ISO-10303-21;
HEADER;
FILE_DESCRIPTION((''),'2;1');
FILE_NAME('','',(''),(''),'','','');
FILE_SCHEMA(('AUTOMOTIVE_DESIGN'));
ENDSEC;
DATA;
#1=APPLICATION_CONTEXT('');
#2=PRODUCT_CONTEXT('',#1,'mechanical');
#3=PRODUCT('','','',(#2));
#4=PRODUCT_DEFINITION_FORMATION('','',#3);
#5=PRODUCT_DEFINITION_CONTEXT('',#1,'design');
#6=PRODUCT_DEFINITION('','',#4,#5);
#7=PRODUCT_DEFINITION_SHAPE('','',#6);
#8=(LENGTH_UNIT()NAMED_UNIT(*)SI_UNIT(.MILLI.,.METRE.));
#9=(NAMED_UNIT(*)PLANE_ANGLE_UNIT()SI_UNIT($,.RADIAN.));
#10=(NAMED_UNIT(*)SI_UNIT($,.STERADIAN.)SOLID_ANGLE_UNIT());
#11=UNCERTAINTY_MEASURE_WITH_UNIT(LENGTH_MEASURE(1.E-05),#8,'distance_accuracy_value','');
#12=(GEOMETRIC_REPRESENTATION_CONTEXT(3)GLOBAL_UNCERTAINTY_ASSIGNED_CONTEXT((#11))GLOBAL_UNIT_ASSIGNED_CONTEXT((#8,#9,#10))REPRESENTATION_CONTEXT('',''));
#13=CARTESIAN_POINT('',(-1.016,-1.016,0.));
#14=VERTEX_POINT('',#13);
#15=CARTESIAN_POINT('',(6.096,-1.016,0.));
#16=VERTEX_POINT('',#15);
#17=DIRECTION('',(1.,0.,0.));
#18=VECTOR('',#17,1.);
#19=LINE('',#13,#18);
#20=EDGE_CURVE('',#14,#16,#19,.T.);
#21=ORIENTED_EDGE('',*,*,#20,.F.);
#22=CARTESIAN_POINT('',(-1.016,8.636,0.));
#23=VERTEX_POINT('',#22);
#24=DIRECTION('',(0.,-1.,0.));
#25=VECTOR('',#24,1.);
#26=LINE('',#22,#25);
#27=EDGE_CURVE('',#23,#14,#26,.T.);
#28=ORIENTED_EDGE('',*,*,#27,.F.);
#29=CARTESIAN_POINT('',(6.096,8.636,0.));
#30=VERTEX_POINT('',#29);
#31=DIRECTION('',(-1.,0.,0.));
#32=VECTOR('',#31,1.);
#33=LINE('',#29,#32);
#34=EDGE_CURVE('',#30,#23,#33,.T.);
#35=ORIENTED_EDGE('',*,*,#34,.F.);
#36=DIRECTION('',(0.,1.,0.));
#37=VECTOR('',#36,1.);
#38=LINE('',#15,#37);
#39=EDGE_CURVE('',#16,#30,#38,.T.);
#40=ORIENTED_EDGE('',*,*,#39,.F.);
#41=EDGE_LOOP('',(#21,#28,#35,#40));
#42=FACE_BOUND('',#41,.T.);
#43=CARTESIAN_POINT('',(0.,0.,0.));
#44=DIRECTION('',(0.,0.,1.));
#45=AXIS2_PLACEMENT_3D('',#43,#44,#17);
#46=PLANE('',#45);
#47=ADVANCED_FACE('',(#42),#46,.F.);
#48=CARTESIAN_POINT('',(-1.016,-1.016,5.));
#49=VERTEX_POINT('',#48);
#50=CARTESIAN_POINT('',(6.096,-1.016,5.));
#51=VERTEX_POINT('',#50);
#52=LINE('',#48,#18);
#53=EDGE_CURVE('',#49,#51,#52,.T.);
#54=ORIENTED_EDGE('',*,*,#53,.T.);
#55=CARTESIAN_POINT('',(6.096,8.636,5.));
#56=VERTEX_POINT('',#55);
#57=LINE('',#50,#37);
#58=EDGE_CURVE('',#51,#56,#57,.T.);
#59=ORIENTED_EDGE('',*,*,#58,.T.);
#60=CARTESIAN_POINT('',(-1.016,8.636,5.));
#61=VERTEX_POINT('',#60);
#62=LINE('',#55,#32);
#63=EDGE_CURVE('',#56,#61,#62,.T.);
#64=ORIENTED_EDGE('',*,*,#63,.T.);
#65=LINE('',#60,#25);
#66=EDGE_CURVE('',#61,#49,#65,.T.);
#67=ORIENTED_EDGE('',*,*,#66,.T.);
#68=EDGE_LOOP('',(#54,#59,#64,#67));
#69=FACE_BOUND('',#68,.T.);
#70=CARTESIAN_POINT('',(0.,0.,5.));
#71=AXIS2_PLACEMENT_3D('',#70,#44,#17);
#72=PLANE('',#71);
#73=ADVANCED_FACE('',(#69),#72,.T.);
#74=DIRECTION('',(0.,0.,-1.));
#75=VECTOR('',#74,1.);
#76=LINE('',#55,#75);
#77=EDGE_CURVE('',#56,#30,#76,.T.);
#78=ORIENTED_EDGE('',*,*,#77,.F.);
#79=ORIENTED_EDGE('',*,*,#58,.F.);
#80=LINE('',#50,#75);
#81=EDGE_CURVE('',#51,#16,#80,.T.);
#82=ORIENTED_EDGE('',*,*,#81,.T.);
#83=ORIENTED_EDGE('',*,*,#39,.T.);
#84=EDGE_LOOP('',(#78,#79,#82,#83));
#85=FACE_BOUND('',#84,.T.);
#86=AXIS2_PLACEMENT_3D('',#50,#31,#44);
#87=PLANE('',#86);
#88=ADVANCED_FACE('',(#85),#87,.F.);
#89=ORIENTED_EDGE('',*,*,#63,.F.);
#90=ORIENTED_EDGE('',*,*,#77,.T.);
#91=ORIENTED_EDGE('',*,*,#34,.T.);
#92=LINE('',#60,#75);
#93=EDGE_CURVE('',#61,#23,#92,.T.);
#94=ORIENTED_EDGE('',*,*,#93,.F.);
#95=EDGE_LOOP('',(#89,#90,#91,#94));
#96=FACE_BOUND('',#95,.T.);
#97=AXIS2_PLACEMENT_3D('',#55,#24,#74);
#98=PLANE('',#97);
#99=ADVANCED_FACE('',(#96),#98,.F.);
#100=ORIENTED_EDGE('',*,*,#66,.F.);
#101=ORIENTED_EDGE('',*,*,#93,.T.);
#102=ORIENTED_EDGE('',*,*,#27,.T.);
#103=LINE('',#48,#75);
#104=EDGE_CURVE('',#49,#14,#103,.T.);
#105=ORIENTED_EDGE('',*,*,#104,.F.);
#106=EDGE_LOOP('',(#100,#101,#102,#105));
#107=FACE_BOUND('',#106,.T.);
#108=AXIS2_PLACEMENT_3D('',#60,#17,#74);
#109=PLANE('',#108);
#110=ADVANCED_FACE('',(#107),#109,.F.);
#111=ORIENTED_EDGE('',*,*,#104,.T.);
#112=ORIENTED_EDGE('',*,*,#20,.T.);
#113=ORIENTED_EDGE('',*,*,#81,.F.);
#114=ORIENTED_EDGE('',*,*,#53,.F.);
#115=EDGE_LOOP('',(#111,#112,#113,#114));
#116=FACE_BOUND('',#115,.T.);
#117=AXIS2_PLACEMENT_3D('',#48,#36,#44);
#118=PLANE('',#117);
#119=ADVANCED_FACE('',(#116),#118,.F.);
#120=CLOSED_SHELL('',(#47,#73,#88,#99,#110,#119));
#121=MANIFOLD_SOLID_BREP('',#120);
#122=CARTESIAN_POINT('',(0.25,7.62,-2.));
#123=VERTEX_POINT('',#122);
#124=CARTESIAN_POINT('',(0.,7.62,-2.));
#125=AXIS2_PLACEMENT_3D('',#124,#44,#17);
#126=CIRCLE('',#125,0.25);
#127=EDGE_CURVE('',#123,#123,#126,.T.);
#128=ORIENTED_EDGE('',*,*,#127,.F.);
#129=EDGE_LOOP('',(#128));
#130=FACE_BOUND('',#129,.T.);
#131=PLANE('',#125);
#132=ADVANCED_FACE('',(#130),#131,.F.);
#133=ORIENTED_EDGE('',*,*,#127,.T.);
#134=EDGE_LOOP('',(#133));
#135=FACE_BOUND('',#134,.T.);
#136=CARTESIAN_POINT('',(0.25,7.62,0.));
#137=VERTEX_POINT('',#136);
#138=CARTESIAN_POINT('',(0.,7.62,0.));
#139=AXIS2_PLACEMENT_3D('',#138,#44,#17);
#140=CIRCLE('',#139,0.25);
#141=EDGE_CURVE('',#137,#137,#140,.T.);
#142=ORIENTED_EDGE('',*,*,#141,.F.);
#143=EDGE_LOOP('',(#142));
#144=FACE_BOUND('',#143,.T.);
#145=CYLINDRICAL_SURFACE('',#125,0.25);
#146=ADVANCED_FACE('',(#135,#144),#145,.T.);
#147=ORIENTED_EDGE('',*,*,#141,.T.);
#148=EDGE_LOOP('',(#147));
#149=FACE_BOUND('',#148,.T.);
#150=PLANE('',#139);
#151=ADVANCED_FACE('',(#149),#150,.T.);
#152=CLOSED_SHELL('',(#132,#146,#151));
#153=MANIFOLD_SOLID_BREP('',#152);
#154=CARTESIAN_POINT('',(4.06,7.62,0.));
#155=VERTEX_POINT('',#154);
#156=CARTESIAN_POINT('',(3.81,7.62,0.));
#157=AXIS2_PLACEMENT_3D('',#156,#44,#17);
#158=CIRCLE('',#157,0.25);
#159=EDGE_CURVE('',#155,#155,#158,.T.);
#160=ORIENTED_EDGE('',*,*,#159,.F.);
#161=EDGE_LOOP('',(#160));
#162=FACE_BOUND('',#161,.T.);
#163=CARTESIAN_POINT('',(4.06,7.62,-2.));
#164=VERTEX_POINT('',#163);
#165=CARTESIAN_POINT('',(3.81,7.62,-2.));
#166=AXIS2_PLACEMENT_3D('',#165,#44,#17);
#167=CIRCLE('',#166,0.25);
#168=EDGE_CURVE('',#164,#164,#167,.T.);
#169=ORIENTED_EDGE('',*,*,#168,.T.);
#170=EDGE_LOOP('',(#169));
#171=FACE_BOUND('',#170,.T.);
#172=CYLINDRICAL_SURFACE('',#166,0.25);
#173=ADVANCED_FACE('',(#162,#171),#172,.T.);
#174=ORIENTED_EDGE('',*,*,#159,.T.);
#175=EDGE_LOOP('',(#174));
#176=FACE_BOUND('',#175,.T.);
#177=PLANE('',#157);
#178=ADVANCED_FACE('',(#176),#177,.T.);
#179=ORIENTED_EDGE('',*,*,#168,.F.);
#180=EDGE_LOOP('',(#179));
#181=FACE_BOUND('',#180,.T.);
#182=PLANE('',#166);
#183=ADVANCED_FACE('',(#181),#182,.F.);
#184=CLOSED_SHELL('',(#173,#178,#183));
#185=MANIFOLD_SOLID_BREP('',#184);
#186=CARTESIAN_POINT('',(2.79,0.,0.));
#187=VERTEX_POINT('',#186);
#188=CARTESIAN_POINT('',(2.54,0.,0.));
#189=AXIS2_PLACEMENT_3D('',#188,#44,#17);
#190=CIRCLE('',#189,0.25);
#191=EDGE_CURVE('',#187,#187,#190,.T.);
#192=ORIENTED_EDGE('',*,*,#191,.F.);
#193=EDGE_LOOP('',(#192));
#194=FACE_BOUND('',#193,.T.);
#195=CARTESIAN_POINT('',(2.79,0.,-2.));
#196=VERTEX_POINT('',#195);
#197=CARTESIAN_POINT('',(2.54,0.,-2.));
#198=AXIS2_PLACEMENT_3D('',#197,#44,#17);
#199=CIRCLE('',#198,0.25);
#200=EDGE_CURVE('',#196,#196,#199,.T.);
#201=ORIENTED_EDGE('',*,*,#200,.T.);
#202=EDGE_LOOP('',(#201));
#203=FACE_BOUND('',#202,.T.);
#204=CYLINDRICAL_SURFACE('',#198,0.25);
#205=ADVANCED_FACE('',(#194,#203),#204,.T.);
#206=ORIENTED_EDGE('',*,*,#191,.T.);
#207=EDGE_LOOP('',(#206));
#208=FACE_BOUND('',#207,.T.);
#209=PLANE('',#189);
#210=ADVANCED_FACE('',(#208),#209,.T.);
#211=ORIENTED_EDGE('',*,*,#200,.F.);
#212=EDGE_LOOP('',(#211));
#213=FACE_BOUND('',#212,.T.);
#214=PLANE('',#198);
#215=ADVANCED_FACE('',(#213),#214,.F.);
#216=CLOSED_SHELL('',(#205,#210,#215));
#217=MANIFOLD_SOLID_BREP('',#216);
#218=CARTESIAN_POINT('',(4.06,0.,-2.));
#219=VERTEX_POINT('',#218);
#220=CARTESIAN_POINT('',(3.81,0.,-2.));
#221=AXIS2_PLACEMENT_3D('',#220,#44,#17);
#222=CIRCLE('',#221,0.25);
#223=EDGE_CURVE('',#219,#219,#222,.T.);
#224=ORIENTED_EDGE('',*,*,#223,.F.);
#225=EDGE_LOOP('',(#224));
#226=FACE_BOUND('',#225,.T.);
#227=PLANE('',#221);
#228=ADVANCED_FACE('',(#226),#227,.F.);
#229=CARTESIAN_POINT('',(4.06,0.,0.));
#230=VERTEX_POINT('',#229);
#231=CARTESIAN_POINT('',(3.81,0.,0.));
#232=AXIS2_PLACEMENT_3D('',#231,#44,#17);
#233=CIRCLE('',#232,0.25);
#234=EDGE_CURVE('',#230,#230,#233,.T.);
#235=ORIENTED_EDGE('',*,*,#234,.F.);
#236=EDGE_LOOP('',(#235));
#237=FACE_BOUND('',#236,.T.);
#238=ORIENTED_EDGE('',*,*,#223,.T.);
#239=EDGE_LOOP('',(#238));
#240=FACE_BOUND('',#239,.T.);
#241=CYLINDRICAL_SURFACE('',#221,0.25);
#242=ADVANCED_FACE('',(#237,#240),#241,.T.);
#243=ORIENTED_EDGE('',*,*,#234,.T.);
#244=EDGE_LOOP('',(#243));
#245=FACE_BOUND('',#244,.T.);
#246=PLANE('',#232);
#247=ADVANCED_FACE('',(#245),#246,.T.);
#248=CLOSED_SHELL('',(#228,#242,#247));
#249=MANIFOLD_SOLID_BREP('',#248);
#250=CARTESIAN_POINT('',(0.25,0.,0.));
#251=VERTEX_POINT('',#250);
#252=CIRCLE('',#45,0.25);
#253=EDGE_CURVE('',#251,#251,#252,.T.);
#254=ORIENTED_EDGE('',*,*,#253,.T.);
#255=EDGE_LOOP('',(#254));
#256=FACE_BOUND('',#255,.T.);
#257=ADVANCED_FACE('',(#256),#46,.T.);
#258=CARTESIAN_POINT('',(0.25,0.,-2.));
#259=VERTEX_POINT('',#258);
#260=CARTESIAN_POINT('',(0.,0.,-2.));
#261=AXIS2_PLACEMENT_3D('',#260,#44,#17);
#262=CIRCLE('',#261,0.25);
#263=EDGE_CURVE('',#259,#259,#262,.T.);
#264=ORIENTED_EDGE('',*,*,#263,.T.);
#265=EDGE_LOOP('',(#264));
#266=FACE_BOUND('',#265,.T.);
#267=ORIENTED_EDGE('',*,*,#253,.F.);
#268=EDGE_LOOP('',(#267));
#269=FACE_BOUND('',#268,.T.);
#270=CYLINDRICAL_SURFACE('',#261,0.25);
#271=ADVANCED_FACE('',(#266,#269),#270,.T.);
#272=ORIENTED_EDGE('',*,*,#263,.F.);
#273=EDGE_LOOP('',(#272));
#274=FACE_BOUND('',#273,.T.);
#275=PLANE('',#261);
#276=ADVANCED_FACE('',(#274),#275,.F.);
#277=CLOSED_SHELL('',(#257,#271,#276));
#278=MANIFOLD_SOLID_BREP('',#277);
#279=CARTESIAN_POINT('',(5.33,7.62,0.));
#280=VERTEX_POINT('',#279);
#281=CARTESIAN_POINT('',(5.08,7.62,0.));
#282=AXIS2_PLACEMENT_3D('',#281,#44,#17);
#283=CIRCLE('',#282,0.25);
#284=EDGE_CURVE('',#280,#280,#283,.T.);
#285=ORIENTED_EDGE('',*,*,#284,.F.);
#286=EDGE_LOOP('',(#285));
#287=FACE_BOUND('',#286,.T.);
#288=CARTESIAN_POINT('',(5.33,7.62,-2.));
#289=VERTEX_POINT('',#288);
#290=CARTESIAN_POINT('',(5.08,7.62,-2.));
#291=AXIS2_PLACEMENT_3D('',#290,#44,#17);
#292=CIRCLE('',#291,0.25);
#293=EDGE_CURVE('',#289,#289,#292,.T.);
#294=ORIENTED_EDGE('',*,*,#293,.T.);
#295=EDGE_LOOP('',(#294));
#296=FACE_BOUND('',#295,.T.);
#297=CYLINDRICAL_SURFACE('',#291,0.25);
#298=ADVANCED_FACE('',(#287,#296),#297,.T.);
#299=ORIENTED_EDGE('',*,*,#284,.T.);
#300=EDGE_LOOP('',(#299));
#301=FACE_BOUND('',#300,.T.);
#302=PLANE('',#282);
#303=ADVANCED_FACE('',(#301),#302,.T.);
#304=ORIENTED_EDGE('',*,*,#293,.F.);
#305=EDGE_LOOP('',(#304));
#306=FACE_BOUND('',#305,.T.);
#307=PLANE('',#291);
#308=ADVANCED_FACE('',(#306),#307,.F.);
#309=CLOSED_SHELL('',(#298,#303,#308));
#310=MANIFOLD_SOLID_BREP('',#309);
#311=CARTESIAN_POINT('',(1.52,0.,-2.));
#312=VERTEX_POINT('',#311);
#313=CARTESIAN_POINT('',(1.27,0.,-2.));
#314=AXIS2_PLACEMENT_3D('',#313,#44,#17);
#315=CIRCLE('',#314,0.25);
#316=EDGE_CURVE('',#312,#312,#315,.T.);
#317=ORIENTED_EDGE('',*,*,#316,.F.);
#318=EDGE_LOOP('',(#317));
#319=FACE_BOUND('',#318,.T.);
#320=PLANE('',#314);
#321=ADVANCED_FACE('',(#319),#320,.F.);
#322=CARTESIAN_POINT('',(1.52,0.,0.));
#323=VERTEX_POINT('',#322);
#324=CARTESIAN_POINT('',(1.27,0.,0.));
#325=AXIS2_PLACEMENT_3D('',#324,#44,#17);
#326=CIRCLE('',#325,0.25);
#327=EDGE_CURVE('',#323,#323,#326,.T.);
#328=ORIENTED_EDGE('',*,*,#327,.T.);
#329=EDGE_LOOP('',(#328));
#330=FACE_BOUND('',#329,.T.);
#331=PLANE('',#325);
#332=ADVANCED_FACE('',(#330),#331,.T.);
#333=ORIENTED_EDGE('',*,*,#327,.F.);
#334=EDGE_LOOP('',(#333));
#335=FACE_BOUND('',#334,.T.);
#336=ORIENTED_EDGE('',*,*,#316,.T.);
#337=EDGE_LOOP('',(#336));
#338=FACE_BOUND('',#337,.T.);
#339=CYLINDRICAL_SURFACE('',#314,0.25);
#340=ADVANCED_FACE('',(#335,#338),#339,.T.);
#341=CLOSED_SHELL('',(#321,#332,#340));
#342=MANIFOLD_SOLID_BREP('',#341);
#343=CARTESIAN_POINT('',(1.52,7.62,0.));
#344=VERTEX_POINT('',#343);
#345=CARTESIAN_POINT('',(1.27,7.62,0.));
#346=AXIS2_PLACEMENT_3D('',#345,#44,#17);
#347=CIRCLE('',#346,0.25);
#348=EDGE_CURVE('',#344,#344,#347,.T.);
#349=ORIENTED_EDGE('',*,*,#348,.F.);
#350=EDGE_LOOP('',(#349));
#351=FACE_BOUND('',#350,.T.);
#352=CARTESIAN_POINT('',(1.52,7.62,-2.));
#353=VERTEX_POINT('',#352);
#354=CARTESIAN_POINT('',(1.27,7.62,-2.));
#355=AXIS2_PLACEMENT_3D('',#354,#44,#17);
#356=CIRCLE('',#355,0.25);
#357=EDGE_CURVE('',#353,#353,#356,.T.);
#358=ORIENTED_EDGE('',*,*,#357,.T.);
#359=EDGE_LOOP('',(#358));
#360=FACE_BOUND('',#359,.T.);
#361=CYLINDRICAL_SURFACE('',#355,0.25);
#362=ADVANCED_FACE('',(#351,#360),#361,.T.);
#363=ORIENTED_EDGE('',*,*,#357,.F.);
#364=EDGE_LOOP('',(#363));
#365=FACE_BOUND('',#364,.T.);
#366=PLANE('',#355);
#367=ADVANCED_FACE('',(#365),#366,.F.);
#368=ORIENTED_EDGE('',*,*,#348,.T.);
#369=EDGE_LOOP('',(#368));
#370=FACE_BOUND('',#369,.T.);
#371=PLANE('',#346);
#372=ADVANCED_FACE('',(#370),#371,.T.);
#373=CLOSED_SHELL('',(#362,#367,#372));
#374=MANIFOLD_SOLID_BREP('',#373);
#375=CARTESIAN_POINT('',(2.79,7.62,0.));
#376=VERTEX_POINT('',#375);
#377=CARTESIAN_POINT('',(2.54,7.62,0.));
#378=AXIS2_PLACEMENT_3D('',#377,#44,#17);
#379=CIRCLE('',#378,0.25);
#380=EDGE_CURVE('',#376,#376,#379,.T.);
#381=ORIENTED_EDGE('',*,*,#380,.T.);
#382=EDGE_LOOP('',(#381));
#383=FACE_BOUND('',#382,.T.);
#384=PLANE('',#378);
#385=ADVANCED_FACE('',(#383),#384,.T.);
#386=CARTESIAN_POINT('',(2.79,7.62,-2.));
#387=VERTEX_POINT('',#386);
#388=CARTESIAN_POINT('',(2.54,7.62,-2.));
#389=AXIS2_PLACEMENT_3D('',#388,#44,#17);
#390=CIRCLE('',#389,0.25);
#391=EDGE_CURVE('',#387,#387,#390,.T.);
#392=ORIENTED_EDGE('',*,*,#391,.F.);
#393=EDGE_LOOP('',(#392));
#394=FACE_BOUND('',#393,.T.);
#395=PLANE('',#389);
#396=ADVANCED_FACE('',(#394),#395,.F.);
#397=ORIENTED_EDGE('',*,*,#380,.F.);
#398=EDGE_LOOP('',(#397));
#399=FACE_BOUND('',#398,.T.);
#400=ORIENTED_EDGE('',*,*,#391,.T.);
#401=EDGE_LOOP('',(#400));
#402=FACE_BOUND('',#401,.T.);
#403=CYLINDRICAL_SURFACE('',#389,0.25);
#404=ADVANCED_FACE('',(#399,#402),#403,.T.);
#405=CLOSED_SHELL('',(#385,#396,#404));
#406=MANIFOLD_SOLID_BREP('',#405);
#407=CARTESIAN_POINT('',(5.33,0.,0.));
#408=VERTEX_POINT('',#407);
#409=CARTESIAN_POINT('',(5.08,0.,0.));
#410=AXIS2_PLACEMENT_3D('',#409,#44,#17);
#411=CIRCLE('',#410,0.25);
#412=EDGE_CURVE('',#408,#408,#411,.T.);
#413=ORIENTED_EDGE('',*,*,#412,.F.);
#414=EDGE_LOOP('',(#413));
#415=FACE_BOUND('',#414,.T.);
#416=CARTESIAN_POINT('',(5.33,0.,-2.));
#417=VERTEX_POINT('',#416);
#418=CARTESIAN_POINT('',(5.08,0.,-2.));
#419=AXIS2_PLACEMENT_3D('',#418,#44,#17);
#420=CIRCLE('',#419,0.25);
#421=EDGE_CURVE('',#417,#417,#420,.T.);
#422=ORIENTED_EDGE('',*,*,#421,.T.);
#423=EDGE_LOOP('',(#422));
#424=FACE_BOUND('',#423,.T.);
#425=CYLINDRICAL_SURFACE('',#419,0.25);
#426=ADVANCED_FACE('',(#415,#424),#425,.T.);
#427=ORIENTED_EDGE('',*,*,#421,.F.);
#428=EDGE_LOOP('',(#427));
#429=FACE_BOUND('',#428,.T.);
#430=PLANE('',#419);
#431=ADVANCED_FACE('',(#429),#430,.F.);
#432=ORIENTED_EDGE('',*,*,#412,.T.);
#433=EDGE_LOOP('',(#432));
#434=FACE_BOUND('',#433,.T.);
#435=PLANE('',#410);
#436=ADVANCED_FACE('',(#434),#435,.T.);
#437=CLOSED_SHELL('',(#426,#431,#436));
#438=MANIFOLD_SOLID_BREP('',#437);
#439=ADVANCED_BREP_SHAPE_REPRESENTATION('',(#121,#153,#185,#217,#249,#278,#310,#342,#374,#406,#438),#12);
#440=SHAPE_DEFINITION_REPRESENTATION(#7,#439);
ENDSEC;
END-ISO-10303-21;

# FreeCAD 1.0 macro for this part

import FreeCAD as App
import Part
import Sketcher

V = App.Vector


def add_polygon(sketch, points):
    """Adds a closed chain of lines whose ends are joined by coincident constraints."""
    first, n = sketch.GeometryCount, len(points)
    for a, b in zip(points, points[1:] + points[:1]):
        sketch.addGeometry(Part.LineSegment(App.Vector(*a, 0), App.Vector(*b, 0)), False)
    for i in range(n):
        sketch.addConstraint(Sketcher.Constraint("Coincident", first + i, 2, first + (i + 1) % n, 1))

doc = App.newDocument("Part")
body = doc.addObject("PartDesign::Body", "Body")

# Sketch on XY plane
sketch1 = body.newObject("Sketcher::SketchObject", "Sketch")
sketch1.AttachmentSupport = (doc.getObject("XY_Plane"), [""])
sketch1.MapMode = "FlatFace"
add_polygon(sketch1, [(-1, 9), (-1, -1), (6, -1), (6, 9)])  # lines 0-3
sketch1.addConstraint([
    Sketcher.Constraint("Vertical", 0),
    Sketcher.Constraint("Horizontal", 1),
    Sketcher.Constraint("Vertical", 2),
    Sketcher.Constraint("Horizontal", 3),
    Sketcher.Constraint("DistanceX", 1, 1, 1, 2, 7.112),
    Sketcher.Constraint("DistanceY", 0, 2, 0, 1, 9.652),
    Sketcher.Constraint("DistanceX", 0, 2, -1, 1, 1.016),
    Sketcher.Constraint("DistanceY", 0, 2, -1, 1, 1.016),
])
pad1 = body.newObject("PartDesign::Pad", "Pad")
pad1.Profile = sketch1
pad1.Length = 5
body2 = doc.addObject("PartDesign::Body", "Body001")

# Sketch on XY plane
sketch2 = body2.newObject("Sketcher::SketchObject", "Sketch001")
sketch2.AttachmentSupport = (doc.getObject("XY_Plane001"), [""])
sketch2.MapMode = "FlatFace"
sketch2.addGeometry(Part.Circle(V(0, 0, 0), V(0, 0, 1), 0.25), False)
sketch2.addConstraint([
    Sketcher.Constraint("Coincident", 0, 3, -1, 1),
    Sketcher.Constraint("Diameter", 0, 0.5),
])
pad2 = body2.newObject("PartDesign::Pad", "Pad001")
pad2.Profile = sketch2
pad2.Length = 2
pad2.Reversed = True
body3 = doc.addObject("PartDesign::Body", "Body002")

# Sketch on XY plane
sketch3 = body3.newObject("Sketcher::SketchObject", "Sketch002")
sketch3.AttachmentSupport = (doc.getObject("XY_Plane002"), [""])
sketch3.MapMode = "FlatFace"
sketch3.addGeometry(Part.Circle(V(1.27, 0, 0), V(0, 0, 1), 0.25), False)
sketch3.addConstraint([
    Sketcher.Constraint("PointOnObject", 0, 3, -1),
    Sketcher.Constraint("Diameter", 0, 0.5),
    Sketcher.Constraint("DistanceX", -1, 1, 0, 3, 1.27),
])
pad3 = body3.newObject("PartDesign::Pad", "Pad002")
pad3.Profile = sketch3
pad3.Length = 2
pad3.Reversed = True
body4 = doc.addObject("PartDesign::Body", "Body003")

# Sketch on XY plane
sketch4 = body4.newObject("Sketcher::SketchObject", "Sketch003")
sketch4.AttachmentSupport = (doc.getObject("XY_Plane003"), [""])
sketch4.MapMode = "FlatFace"
sketch4.addGeometry(Part.Circle(V(2.54, 0, 0), V(0, 0, 1), 0.25), False)
sketch4.addConstraint([
    Sketcher.Constraint("PointOnObject", 0, 3, -1),
    Sketcher.Constraint("Diameter", 0, 0.5),
    Sketcher.Constraint("DistanceX", -1, 1, 0, 3, 2.54),
])
pad4 = body4.newObject("PartDesign::Pad", "Pad003")
pad4.Profile = sketch4
pad4.Length = 2
pad4.Reversed = True
body5 = doc.addObject("PartDesign::Body", "Body004")

# Sketch on XY plane
sketch5 = body5.newObject("Sketcher::SketchObject", "Sketch004")
sketch5.AttachmentSupport = (doc.getObject("XY_Plane004"), [""])
sketch5.MapMode = "FlatFace"
sketch5.addGeometry(Part.Circle(V(3.81, 0, 0), V(0, 0, 1), 0.25), False)
sketch5.addConstraint([
    Sketcher.Constraint("PointOnObject", 0, 3, -1),
    Sketcher.Constraint("Diameter", 0, 0.5),
    Sketcher.Constraint("DistanceX", -1, 1, 0, 3, 3.81),
])
pad5 = body5.newObject("PartDesign::Pad", "Pad004")
pad5.Profile = sketch5
pad5.Length = 2
pad5.Reversed = True
body6 = doc.addObject("PartDesign::Body", "Body005")

# Sketch on XY plane
sketch6 = body6.newObject("Sketcher::SketchObject", "Sketch005")
sketch6.AttachmentSupport = (doc.getObject("XY_Plane005"), [""])
sketch6.MapMode = "FlatFace"
sketch6.addGeometry(Part.Circle(V(5.08, 0, 0), V(0, 0, 1), 0.25), False)
sketch6.addConstraint([
    Sketcher.Constraint("PointOnObject", 0, 3, -1),
    Sketcher.Constraint("Diameter", 0, 0.5),
    Sketcher.Constraint("DistanceX", -1, 1, 0, 3, 5.08),
])
pad6 = body6.newObject("PartDesign::Pad", "Pad005")
pad6.Profile = sketch6
pad6.Length = 2
pad6.Reversed = True
body7 = doc.addObject("PartDesign::Body", "Body006")

# Sketch on XY plane
sketch7 = body7.newObject("Sketcher::SketchObject", "Sketch006")
sketch7.AttachmentSupport = (doc.getObject("XY_Plane006"), [""])
sketch7.MapMode = "FlatFace"
sketch7.addGeometry(Part.Circle(V(5.08, 7.62, 0), V(0, 0, 1), 0.25), False)
sketch7.addConstraint([
    Sketcher.Constraint("Diameter", 0, 0.5),
    Sketcher.Constraint("DistanceX", -1, 1, 0, 3, 5.08),
    Sketcher.Constraint("DistanceY", -1, 1, 0, 3, 7.62),
])
pad7 = body7.newObject("PartDesign::Pad", "Pad006")
pad7.Profile = sketch7
pad7.Length = 2
pad7.Reversed = True
body8 = doc.addObject("PartDesign::Body", "Body007")

# Sketch on XY plane
sketch8 = body8.newObject("Sketcher::SketchObject", "Sketch007")
sketch8.AttachmentSupport = (doc.getObject("XY_Plane007"), [""])
sketch8.MapMode = "FlatFace"
sketch8.addGeometry(Part.Circle(V(3.81, 7.62, 0), V(0, 0, 1), 0.25), False)
sketch8.addConstraint([
    Sketcher.Constraint("Diameter", 0, 0.5),
    Sketcher.Constraint("DistanceX", -1, 1, 0, 3, 3.81),
    Sketcher.Constraint("DistanceY", -1, 1, 0, 3, 7.62),
])
pad8 = body8.newObject("PartDesign::Pad", "Pad007")
pad8.Profile = sketch8
pad8.Length = 2
pad8.Reversed = True
body9 = doc.addObject("PartDesign::Body", "Body008")

# Sketch on XY plane
sketch9 = body9.newObject("Sketcher::SketchObject", "Sketch008")
sketch9.AttachmentSupport = (doc.getObject("XY_Plane008"), [""])
sketch9.MapMode = "FlatFace"
sketch9.addGeometry(Part.Circle(V(2.54, 7.62, 0), V(0, 0, 1), 0.25), False)
sketch9.addConstraint([
    Sketcher.Constraint("Diameter", 0, 0.5),
    Sketcher.Constraint("DistanceX", -1, 1, 0, 3, 2.54),
    Sketcher.Constraint("DistanceY", -1, 1, 0, 3, 7.62),
])
pad9 = body9.newObject("PartDesign::Pad", "Pad008")
pad9.Profile = sketch9
pad9.Length = 2
pad9.Reversed = True
body10 = doc.addObject("PartDesign::Body", "Body009")

# Sketch on XY plane
sketch10 = body10.newObject("Sketcher::SketchObject", "Sketch009")
sketch10.AttachmentSupport = (doc.getObject("XY_Plane009"), [""])
sketch10.MapMode = "FlatFace"
sketch10.addGeometry(Part.Circle(V(1.27, 7.62, 0), V(0, 0, 1), 0.25), False)
sketch10.addConstraint([
    Sketcher.Constraint("Diameter", 0, 0.5),
    Sketcher.Constraint("DistanceX", -1, 1, 0, 3, 1.27),
    Sketcher.Constraint("DistanceY", -1, 1, 0, 3, 7.62),
])
pad10 = body10.newObject("PartDesign::Pad", "Pad009")
pad10.Profile = sketch10
pad10.Length = 2
pad10.Reversed = True
body11 = doc.addObject("PartDesign::Body", "Body010")

# Sketch on XY plane
sketch11 = body11.newObject("Sketcher::SketchObject", "Sketch010")
sketch11.AttachmentSupport = (doc.getObject("XY_Plane010"), [""])
sketch11.MapMode = "FlatFace"
sketch11.addGeometry(Part.Circle(V(0, 7.62, 0), V(0, 0, 1), 0.25), False)
sketch11.addConstraint([
    Sketcher.Constraint("PointOnObject", 0, 3, -2),
    Sketcher.Constraint("Diameter", 0, 0.5),
    Sketcher.Constraint("DistanceY", -1, 1, 0, 3, 7.62),
])
pad11 = body11.newObject("PartDesign::Pad", "Pad010")
pad11.Profile = sketch11
pad11.Length = 2
pad11.Reversed = True

doc.recompute()
